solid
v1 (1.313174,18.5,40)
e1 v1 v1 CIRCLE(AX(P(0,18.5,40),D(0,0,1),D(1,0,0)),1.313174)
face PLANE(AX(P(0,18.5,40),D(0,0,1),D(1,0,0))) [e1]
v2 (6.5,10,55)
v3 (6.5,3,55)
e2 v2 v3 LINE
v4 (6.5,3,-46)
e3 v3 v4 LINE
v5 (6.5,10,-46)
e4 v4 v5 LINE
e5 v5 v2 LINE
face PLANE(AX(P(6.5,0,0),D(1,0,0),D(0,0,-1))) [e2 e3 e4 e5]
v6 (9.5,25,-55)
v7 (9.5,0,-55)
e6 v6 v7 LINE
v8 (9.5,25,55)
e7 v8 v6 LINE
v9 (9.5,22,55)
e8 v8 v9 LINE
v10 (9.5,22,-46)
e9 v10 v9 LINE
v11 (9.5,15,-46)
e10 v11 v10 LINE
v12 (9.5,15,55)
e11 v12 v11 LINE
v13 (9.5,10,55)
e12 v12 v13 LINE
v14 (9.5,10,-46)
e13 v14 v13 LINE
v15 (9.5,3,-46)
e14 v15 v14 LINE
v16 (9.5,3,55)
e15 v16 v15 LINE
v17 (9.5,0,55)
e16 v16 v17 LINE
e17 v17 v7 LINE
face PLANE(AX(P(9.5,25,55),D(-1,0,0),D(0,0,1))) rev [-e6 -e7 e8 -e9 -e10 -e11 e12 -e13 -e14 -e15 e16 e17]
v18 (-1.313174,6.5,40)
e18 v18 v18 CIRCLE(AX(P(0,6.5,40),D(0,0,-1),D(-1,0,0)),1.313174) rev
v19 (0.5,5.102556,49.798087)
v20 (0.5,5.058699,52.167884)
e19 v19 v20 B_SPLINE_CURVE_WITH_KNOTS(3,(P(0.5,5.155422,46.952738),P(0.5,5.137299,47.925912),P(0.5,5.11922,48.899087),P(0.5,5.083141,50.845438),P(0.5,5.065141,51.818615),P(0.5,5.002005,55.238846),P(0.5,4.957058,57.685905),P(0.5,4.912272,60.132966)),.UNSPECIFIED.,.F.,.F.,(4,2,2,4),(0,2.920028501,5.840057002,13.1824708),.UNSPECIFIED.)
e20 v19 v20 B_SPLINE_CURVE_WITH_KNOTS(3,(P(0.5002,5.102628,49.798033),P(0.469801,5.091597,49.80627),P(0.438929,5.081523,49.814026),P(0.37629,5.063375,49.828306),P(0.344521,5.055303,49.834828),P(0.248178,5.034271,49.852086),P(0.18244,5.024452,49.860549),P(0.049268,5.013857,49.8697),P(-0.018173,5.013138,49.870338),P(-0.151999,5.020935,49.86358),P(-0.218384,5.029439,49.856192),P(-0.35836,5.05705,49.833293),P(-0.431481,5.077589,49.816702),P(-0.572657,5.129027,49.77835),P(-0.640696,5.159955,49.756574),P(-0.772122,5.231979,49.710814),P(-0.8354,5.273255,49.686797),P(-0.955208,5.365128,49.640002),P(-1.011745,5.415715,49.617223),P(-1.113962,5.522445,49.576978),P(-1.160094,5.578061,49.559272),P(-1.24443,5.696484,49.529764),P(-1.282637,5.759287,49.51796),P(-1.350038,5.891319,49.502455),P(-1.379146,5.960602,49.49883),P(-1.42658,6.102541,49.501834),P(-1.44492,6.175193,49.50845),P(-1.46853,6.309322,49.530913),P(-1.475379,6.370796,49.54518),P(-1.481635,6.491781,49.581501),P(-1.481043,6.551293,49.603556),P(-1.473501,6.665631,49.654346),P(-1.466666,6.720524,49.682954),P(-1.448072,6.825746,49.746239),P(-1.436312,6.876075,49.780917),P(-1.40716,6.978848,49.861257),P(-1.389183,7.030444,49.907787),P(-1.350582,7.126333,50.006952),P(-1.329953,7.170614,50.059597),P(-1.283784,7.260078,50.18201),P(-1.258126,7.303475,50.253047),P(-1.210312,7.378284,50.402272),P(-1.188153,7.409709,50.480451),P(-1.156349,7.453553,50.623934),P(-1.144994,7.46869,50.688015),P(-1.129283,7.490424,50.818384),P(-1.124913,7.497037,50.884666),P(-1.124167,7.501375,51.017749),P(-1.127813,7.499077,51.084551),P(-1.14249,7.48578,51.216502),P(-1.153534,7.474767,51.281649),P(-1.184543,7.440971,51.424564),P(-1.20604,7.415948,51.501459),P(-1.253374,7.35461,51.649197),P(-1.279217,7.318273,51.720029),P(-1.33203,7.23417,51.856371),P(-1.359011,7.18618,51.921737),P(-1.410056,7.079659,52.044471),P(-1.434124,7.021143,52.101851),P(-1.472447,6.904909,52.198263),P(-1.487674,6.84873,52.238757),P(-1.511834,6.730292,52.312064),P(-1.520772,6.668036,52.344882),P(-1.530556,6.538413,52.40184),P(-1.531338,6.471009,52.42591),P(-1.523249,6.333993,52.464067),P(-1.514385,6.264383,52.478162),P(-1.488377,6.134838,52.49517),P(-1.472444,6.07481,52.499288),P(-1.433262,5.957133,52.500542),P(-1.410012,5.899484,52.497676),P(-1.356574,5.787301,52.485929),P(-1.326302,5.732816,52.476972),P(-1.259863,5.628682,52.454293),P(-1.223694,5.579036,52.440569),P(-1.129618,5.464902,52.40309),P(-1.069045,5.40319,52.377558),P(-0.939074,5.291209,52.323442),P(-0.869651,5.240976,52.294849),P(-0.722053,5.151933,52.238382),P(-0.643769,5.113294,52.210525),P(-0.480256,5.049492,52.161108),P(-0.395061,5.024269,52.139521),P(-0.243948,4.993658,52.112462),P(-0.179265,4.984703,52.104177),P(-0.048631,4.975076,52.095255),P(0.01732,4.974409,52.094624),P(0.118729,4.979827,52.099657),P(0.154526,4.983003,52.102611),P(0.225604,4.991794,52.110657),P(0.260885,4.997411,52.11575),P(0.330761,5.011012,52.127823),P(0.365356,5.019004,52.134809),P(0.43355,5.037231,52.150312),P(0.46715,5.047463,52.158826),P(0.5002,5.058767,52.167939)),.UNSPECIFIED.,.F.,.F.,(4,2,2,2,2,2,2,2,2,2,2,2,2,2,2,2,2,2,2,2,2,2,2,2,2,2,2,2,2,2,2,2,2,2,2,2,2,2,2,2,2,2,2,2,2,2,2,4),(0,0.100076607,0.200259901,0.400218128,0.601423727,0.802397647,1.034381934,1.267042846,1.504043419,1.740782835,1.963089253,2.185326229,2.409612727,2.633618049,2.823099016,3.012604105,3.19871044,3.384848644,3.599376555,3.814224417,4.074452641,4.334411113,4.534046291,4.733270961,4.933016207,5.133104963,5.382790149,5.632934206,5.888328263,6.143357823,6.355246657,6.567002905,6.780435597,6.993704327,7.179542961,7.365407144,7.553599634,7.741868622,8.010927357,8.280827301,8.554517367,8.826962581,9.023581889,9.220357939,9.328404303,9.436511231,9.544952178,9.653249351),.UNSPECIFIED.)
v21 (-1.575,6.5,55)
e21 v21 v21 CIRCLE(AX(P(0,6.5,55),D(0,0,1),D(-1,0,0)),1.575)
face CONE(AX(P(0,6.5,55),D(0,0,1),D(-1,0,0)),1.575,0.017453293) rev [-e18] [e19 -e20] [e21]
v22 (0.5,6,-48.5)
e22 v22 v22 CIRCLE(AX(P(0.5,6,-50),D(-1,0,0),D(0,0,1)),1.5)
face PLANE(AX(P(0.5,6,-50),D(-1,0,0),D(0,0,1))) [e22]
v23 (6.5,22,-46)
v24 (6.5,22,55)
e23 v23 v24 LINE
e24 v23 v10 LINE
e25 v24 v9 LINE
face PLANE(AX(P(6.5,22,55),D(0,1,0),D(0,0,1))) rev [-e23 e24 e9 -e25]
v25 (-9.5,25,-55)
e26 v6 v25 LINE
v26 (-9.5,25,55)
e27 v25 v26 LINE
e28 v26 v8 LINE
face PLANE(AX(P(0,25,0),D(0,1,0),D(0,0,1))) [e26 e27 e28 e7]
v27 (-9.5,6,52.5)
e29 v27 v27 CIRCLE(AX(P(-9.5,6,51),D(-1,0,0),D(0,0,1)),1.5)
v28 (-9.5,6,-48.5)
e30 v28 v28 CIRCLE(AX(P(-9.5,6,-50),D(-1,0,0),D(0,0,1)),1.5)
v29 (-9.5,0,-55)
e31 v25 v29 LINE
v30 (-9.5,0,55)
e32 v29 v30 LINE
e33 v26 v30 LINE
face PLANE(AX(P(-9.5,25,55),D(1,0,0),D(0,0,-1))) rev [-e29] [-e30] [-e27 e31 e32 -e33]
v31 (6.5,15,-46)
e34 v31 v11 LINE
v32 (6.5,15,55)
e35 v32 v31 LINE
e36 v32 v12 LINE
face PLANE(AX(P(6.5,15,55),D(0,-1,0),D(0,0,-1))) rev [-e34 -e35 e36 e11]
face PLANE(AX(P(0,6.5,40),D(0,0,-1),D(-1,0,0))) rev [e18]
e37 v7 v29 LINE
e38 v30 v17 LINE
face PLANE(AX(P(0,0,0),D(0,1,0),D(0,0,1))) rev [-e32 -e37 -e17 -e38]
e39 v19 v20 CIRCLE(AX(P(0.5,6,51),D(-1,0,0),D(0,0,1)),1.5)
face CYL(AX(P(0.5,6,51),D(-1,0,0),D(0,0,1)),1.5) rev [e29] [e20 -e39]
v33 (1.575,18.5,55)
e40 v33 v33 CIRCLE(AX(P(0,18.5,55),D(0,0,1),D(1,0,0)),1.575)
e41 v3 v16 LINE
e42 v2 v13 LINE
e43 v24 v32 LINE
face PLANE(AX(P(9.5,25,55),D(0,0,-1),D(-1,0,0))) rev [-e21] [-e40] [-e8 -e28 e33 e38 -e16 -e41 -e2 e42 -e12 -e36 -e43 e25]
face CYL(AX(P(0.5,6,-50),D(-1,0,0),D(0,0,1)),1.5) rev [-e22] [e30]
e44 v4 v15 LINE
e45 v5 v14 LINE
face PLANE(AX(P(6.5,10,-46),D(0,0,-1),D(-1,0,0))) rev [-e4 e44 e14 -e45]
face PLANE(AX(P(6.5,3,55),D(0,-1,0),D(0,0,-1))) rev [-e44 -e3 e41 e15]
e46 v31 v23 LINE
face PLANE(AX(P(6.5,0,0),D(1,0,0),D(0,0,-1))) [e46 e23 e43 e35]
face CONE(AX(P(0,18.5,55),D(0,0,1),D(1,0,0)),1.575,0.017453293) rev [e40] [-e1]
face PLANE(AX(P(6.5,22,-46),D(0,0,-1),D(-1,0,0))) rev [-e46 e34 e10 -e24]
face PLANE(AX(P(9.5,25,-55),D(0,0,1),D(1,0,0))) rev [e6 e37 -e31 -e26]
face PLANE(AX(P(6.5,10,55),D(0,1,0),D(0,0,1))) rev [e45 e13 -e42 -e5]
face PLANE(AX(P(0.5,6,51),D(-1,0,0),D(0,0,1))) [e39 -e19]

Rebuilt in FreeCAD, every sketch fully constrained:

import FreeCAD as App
import Part
import Sketcher
from FreeCAD import Vector
Q = App.Units.Quantity


def faces_at(feature, points):
    """Names of the faces that lie closest to the given points."""
    faces = feature.Shape.Faces
    near = lambda p: min(range(len(faces)), key=lambda i: faces[i].distToShape(Part.Vertex(*p))[0])
    return sorted({f"Face{near(p) + 1}" for p in points})


def add_polygon(sketch, points):
    """Adds a closed chain of lines whose ends are joined by coincident constraints."""
    first, n = sketch.GeometryCount, len(points)
    for a, b in zip(points, points[1:] + points[:1]):
        sketch.addGeometry(Part.LineSegment(App.Vector(*a, 0), App.Vector(*b, 0)), False)
    for i in range(n):
        sketch.addConstraint(Sketcher.Constraint("Coincident", first + i, 2, first + (i + 1) % n, 1))

doc = App.newDocument("Part")
body = doc.addObject("PartDesign::Body", "Body")

sketch1 = body.newObject("Sketcher::SketchObject", "Sketch")
sketch1.AttachmentSupport = (doc.getObject("XZ_Plane"), [""])
sketch1.MapMode = "FlatFace"
add_polygon(sketch1, [(-9.5, -55), (-9.5, 55), (9.5, 55), (9.5, -55)])
sketch1.addConstraint([
    Sketcher.Constraint("Vertical", 0),
    Sketcher.Constraint("Horizontal", 1),
    Sketcher.Constraint("Vertical", 2),
    Sketcher.Constraint("Horizontal", 3),
    Sketcher.Constraint("Symmetric", 0, 2, 2, 2, -1, 1),
    Sketcher.Constraint("DistanceX", 1, 1, 1, 2, Q("19 mm")),
    Sketcher.Constraint("DistanceY", 0, 1, 0, 2, Q("110 mm")),
])
pad1 = body.newObject("PartDesign::Pad", "Pad")
pad1.Profile = sketch1
pad1.Length = 25
pad1.Reversed = True

sketch2 = body.newObject("Sketcher::SketchObject", "Sketch001")
sketch2.AttachmentSupport = (doc.getObject("YZ_Plane"), [""])
sketch2.MapMode = "FlatFace"
sketch2.AttachmentOffset = App.Placement(Vector(0, 0, 9.5), App.Rotation())
add_polygon(sketch2, [(10, 55), (3, 55), (3, -46), (10, -46)])
add_polygon(sketch2, [(22, 55), (15, 55), (15, -46), (22, -46)])
sketch2.addConstraint([
    Sketcher.Constraint("Horizontal", 0),
    Sketcher.Constraint("Vertical", 1),
    Sketcher.Constraint("Horizontal", 2),
    Sketcher.Constraint("Vertical", 3),
    Sketcher.Constraint("Horizontal", 4),
    Sketcher.Constraint("Vertical", 5),
    Sketcher.Constraint("Horizontal", 6),
    Sketcher.Constraint("Vertical", 7),
    Sketcher.Constraint("Horizontal", 3, 2, 4, 2),
    Sketcher.Constraint("Horizontal", 2, 2, 5, 2),
    Sketcher.Constraint("Equal", 2, 4),
    Sketcher.Constraint("DistanceX", 0, 2, 0, 1, Q("7 mm")),
    Sketcher.Constraint("DistanceY", 1, 2, 1, 1, Q("101 mm")),
    Sketcher.Constraint("DistanceX", -1, 1, 0, 2, Q("3 mm")),
    Sketcher.Constraint("DistanceY", -1, 1, 0, 2, Q("55 mm")),
    Sketcher.Constraint("DistanceX", -1, 1, 4, 2, Q("15 mm")),
])
pocket1 = body.newObject("PartDesign::Pocket", "Pocket")
pocket1.Profile = sketch2
pocket1.Length = 3

sketch3 = body.newObject("Sketcher::SketchObject", "Sketch002")
sketch3.AttachmentSupport = (doc.getObject("YZ_Plane"), [""])
sketch3.MapMode = "FlatFace"
sketch3.AttachmentOffset = App.Placement(Vector(0, 0, -9.5), App.Rotation())
sketch3.addGeometry([
    Part.Circle(Vector(6, -50, 0), Vector(0, 0, 1), 1.5),
    Part.Circle(Vector(6, 51, 0), Vector(0, 0, 1), 1.5),
], False)
sketch3.addConstraint([
    Sketcher.Constraint("Equal", 0, 1),
    Sketcher.Constraint("Vertical", 0, 3, 1, 3),
    Sketcher.Constraint("Diameter", 0, Q("3 mm")),
    Sketcher.Constraint("DistanceX", -1, 1, 0, 3, Q("6 mm")),
    Sketcher.Constraint("DistanceY", 0, 3, -1, 1, Q("50 mm")),
    Sketcher.Constraint("DistanceY", -1, 1, 1, 3, Q("51 mm")),
])
pocket2 = body.newObject("PartDesign::Pocket", "Pocket001")
pocket2.Profile = sketch3
pocket2.Length = 10
pocket2.Reversed = True
body2 = doc.addObject("PartDesign::Body", "Body001")

sketch4 = body2.newObject("Sketcher::SketchObject", "Sketch003")
sketch4.AttachmentSupport = (doc.getObject("XY_Plane001"), [""])
sketch4.MapMode = "FlatFace"
sketch4.AttachmentOffset = App.Placement(Vector(0, 0, 55), App.Rotation())
sketch4.addGeometry(Part.Circle(Vector(0, 18.5, 0), Vector(0, 0, 1), 1.575), False)
sketch4.addConstraint([
    Sketcher.Constraint("PointOnObject", 0, 3, -2),
    Sketcher.Constraint("Diameter", 0, Q("3.15 mm")),
    Sketcher.Constraint("DistanceY", -1, 1, 0, 3, Q("18.5 mm")),
])
pad2 = body2.newObject("PartDesign::Pad", "Pad001")
pad2.Profile = sketch4
pad2.Length = 15
pad2.Reversed = True
doc.recompute()

datumplane = body2.newObject("PartDesign::Plane", "DatumPlane")
datumplane.AttachmentSupport = (doc.getObject("XY_Plane001"), [""])
datumplane.MapMode = "FlatFace"
datumplane.AttachmentOffset = App.Placement(Vector(0, 0, 55), App.Rotation())
draft = body2.newObject("PartDesign::Draft", "Draft")
draft.Base = (pad2, faces_at(pad2, [(-1.575, 18.5, 47.5)]))
draft.NeutralPlane = (datumplane, [""])
draft.Angle = 1
draft.Reversed = True
doc.recompute()

boolean = body.newObject("PartDesign::Boolean", "Boolean")
boolean.Type = "Cut"
boolean.addObjects([body2])
body3 = doc.addObject("PartDesign::Body", "Body002")

sketch5 = body3.newObject("Sketcher::SketchObject", "Sketch004")
sketch5.AttachmentSupport = (doc.getObject("XY_Plane002"), [""])
sketch5.MapMode = "FlatFace"
sketch5.AttachmentOffset = App.Placement(Vector(0, 0, 55), App.Rotation())
sketch5.addGeometry(Part.Circle(Vector(0, 6.5, 0), Vector(0, 0, 1), 1.575), False)
sketch5.addConstraint([
    Sketcher.Constraint("PointOnObject", 0, 3, -2),
    Sketcher.Constraint("Diameter", 0, Q("3.15 mm")),
    Sketcher.Constraint("DistanceY", -1, 1, 0, 3, Q("6.5 mm")),
])
pad3 = body3.newObject("PartDesign::Pad", "Pad002")
pad3.Profile = sketch5
pad3.Length = 15
pad3.Reversed = True
doc.recompute()

datumplane2 = body3.newObject("PartDesign::Plane", "DatumPlane001")
datumplane2.AttachmentSupport = (doc.getObject("XY_Plane002"), [""])
datumplane2.MapMode = "FlatFace"
datumplane2.AttachmentOffset = App.Placement(Vector(0, 0, 55), App.Rotation())
draft2 = body3.newObject("PartDesign::Draft", "Draft001")
draft2.Base = (pad3, faces_at(pad3, [(-1.575, 6.5, 47.5)]))
draft2.NeutralPlane = (datumplane2, [""])
draft2.Angle = 1
draft2.Reversed = True
doc.recompute()

boolean2 = body.newObject("PartDesign::Boolean", "Boolean001")
boolean2.Type = "Cut"
boolean2.addObjects([body3])

doc.recompute()
